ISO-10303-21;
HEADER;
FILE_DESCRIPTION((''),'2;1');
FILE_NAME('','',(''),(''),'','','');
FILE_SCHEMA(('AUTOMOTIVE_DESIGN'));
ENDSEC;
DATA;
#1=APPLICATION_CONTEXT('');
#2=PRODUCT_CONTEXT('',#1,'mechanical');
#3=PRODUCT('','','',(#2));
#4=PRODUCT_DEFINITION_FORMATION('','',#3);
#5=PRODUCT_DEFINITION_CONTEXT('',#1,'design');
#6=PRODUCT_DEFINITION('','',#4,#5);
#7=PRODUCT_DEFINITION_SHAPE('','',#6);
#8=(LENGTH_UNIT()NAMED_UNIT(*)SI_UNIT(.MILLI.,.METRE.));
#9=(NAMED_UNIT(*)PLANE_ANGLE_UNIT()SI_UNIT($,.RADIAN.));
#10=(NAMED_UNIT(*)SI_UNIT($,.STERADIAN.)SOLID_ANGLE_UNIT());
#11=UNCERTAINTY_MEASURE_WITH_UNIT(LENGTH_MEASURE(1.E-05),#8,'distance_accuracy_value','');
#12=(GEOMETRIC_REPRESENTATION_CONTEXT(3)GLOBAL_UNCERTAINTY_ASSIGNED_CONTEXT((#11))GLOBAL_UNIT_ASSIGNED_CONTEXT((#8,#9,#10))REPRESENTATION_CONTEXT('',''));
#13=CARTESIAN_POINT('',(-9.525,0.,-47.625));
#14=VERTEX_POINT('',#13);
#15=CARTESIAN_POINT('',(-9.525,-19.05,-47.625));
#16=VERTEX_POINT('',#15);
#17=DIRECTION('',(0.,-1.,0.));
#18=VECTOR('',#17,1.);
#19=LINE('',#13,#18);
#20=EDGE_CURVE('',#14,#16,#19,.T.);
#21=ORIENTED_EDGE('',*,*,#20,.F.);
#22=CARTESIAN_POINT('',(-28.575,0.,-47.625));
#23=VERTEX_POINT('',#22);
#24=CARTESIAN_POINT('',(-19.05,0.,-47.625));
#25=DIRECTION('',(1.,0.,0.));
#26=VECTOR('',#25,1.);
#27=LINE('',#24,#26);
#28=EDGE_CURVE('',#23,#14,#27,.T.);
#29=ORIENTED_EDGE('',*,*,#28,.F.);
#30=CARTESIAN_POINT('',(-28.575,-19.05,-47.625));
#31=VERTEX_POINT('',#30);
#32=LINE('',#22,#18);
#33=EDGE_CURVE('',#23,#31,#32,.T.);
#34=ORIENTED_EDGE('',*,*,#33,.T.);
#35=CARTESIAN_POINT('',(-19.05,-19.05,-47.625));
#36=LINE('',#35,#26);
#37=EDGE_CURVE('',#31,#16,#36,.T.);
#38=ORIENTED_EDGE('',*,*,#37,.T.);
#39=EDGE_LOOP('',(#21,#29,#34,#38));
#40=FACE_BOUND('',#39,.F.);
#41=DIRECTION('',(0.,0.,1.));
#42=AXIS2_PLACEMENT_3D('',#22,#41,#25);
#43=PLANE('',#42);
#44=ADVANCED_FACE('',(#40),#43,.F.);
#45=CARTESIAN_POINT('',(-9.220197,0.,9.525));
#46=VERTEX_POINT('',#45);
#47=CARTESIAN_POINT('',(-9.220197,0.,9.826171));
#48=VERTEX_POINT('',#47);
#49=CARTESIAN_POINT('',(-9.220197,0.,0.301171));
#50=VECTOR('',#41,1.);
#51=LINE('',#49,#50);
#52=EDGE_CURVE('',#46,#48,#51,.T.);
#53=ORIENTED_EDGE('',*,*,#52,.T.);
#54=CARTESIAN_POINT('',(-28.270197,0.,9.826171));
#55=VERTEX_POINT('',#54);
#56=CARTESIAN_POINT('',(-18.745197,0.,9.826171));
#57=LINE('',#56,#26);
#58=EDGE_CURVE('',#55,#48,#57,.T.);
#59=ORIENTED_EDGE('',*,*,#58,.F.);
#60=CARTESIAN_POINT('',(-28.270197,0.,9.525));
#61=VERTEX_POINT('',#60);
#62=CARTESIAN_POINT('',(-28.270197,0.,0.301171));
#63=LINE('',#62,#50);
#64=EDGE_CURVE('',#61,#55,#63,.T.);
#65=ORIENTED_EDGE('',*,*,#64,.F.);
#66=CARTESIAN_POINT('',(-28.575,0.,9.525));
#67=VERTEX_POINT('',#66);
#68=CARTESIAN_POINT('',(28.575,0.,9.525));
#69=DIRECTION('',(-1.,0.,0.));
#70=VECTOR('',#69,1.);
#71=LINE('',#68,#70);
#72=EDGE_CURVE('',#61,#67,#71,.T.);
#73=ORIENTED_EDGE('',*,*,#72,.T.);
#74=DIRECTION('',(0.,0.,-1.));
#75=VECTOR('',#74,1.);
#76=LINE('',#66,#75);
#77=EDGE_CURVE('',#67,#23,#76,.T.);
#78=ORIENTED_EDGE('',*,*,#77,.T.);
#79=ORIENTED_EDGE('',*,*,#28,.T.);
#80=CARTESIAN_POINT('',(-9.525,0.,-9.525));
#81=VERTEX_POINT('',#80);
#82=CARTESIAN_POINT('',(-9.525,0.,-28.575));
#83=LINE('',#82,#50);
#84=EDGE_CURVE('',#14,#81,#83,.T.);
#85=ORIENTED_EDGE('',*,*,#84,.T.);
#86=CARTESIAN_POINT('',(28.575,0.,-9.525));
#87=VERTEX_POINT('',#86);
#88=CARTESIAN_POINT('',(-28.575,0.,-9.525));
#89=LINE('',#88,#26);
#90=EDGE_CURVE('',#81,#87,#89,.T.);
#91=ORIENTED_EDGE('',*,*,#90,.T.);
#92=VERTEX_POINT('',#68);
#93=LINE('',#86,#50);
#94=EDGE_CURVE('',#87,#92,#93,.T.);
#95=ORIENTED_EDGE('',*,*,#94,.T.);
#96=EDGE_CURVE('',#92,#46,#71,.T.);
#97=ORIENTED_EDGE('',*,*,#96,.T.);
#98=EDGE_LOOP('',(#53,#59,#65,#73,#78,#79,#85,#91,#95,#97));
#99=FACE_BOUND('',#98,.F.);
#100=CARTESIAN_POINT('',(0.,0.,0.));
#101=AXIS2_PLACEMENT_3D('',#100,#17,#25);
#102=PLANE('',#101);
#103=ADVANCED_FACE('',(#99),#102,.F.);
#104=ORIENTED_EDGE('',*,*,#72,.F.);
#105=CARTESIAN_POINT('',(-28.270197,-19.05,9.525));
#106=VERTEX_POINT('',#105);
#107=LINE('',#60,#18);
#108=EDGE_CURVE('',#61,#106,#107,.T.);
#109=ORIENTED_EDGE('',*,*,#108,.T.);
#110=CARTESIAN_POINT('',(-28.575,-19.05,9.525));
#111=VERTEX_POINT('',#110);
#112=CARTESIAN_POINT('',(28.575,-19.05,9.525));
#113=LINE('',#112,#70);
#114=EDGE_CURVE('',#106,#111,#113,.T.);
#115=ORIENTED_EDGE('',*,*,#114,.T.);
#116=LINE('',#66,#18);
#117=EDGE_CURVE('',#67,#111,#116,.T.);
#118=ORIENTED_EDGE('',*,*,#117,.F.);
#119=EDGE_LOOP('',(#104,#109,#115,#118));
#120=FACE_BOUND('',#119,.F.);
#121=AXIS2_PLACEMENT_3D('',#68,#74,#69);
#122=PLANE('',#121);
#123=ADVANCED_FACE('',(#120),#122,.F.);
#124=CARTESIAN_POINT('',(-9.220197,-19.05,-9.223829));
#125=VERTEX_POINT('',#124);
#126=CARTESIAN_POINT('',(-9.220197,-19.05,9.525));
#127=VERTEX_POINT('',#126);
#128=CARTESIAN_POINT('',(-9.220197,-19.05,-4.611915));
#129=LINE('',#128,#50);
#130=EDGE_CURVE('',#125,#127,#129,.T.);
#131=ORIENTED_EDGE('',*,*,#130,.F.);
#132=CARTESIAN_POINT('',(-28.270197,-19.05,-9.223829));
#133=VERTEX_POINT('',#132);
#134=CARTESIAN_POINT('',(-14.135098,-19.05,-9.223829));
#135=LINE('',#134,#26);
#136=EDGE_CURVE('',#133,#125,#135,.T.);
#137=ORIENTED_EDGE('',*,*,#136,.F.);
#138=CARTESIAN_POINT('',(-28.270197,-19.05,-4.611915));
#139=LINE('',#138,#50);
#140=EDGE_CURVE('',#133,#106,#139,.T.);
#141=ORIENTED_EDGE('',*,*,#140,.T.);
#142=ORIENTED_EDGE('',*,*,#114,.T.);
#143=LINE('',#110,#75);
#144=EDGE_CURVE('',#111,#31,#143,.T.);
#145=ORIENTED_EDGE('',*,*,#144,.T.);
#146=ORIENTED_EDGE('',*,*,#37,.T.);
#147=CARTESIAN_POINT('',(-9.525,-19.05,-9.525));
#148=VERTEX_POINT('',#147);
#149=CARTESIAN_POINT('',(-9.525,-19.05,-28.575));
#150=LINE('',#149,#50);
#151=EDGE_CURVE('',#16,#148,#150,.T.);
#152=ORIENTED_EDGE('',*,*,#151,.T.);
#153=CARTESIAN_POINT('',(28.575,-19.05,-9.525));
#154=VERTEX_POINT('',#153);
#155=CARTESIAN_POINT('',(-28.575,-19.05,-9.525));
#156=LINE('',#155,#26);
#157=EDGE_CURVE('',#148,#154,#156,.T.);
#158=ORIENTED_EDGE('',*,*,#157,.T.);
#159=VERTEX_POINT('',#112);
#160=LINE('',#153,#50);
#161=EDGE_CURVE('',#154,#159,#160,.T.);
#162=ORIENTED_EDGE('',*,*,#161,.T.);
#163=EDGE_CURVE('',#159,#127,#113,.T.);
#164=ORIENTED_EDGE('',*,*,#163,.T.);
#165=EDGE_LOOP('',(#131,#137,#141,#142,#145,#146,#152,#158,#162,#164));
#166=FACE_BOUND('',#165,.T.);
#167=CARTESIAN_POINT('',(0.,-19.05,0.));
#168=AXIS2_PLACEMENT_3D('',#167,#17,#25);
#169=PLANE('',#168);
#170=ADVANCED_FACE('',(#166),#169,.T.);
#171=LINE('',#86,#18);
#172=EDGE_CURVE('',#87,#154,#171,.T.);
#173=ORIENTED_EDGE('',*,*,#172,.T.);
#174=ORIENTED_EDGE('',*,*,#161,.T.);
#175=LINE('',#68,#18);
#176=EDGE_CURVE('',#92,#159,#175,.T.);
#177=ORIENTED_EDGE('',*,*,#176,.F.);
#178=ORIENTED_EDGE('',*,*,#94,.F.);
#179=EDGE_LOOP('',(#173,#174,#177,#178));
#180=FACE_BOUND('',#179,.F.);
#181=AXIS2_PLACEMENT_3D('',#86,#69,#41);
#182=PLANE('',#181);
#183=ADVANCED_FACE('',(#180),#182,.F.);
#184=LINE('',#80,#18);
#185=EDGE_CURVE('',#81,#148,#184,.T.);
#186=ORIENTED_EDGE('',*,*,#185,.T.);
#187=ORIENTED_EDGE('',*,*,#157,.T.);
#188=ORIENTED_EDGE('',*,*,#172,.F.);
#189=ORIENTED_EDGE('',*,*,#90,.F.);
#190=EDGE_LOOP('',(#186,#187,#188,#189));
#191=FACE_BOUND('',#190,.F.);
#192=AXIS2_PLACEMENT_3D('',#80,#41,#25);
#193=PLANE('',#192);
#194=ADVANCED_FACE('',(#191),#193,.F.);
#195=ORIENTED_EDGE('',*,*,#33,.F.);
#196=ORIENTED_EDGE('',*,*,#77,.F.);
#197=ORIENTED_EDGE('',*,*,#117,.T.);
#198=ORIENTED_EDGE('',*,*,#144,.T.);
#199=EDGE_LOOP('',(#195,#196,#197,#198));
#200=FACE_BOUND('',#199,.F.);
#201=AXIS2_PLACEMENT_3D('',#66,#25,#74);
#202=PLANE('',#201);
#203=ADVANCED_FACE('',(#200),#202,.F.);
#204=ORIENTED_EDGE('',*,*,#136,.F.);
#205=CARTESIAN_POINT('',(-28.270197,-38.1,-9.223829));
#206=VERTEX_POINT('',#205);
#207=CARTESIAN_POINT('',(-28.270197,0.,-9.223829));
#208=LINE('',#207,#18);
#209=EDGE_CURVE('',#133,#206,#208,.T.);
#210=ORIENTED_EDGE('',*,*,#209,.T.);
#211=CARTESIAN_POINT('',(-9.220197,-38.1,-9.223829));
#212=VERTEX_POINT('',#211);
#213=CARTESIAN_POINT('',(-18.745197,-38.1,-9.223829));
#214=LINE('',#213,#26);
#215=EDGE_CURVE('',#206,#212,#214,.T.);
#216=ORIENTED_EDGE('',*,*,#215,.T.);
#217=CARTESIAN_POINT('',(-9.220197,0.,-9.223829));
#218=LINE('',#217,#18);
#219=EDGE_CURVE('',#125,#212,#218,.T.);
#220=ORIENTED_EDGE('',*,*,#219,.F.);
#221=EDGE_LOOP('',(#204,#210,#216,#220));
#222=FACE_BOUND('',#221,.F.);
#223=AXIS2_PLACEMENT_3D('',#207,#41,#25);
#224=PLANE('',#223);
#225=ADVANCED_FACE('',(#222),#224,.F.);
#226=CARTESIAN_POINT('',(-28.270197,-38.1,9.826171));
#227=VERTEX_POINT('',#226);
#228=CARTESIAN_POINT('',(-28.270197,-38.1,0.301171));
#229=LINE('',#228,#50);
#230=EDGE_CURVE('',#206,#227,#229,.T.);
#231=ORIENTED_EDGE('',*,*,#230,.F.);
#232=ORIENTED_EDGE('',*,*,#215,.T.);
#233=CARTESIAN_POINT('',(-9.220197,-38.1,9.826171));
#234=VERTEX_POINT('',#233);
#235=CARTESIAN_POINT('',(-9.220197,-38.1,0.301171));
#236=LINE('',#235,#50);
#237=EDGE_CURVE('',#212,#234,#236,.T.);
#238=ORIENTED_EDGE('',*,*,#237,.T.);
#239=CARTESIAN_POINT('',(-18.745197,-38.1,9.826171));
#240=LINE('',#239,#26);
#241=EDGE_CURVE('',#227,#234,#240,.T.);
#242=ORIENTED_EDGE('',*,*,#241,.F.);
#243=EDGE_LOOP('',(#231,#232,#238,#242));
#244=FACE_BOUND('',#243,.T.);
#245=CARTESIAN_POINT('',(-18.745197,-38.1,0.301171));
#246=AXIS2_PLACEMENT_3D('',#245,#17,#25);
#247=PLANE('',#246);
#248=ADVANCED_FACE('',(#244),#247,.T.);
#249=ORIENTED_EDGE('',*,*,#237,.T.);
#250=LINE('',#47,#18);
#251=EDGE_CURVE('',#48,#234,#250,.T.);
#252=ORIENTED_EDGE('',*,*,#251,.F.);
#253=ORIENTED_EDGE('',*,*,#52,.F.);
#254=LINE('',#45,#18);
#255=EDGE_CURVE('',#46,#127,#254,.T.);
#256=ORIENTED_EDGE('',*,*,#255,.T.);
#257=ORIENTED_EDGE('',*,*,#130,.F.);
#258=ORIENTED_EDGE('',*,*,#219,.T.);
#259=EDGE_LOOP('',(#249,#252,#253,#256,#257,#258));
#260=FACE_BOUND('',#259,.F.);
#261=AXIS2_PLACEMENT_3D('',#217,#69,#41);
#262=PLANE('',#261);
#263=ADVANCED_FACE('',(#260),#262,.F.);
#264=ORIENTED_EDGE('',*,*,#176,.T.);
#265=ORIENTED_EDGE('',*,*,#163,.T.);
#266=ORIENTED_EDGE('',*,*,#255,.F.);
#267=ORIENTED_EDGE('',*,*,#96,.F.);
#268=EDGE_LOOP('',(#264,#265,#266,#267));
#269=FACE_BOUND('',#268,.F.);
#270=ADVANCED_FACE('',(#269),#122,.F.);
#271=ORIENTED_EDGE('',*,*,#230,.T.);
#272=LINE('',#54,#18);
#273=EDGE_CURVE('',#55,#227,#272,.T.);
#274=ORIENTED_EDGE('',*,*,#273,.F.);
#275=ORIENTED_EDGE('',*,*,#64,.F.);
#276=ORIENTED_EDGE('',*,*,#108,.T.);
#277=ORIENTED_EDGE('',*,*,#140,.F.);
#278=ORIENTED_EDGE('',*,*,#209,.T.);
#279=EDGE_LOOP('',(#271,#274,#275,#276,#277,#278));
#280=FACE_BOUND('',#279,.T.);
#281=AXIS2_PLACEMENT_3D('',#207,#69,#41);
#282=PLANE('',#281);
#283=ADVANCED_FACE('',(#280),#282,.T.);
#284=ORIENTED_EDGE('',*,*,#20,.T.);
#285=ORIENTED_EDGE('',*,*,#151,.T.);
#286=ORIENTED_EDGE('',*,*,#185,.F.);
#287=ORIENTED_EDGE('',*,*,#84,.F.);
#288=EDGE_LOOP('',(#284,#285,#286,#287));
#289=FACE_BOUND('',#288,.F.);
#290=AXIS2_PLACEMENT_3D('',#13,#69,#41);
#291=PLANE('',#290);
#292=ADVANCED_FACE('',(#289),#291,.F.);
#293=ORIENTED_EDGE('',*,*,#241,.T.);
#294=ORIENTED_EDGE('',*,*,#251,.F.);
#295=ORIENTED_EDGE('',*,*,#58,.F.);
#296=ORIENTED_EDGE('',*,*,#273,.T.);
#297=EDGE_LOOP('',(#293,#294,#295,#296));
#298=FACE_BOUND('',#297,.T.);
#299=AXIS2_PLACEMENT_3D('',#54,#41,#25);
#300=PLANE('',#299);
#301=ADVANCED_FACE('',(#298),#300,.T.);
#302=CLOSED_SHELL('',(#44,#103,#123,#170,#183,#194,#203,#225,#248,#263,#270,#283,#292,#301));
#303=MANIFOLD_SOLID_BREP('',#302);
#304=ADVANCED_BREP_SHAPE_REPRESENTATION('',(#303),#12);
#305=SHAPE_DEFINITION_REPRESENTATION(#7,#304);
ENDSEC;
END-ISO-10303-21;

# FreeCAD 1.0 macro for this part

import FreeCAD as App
import Part
import Sketcher
Q = App.Units.Quantity

doc = App.newDocument("Part")
body = doc.addObject("PartDesign::Body", "Body")

# Sketch on XZ plane
sketch1 = body.newObject("Sketcher::SketchObject", "Sketch")
sketch1.AttachmentSupport = (doc.getObject("XZ_Plane"), [""])
sketch1.MapMode = "FlatFace"
sketch1.addGeometry([
    Part.LineSegment(App.Vector(-28.270197, 9.826171, 0), App.Vector(-28.270197, -9.223829, 0)),
    Part.LineSegment(App.Vector(-28.270197, -9.223829, 0), App.Vector(-9.220197, -9.223829, 0)),
    Part.LineSegment(App.Vector(-9.220197, -9.223829, 0), App.Vector(-9.220197, 9.826171, 0)),
    Part.LineSegment(App.Vector(-9.220197, 9.826171, 0), App.Vector(-28.270197, 9.826171, 0)),
], False)
sketch1.addConstraint([
    Sketcher.Constraint("Coincident", 0, 2, 1, 1),
    Sketcher.Constraint("Coincident", 1, 2, 2, 1),
    Sketcher.Constraint("Coincident", 2, 2, 3, 1),
    Sketcher.Constraint("Coincident", 3, 2, 0, 1),
    Sketcher.Constraint("Vertical", 0),
    Sketcher.Constraint("Horizontal", 1),
    Sketcher.Constraint("Vertical", 2),
    Sketcher.Constraint("Horizontal", 3),
    Sketcher.Constraint("Equal", 3, 0),
    Sketcher.Constraint("DistanceX", 1, 1, 1, 2, Q("0.75 in")),
    Sketcher.Constraint("DistanceX", 0, 2, -1, 1, Q("1.1129999 in")),
    Sketcher.Constraint("DistanceY", 0, 2, -1, 1, 9.223829),
])
pad1 = body.newObject("PartDesign::Pad", "Pad")
pad1.Profile = sketch1
pad1.Length = Q("1.5 in")

# Sketch on XZ plane
sketch2 = body.newObject("Sketcher::SketchObject", "Sketch001")
sketch2.AttachmentSupport = (doc.getObject("XZ_Plane"), [""])
sketch2.MapMode = "FlatFace"
sketch2.addGeometry([
    Part.LineSegment(App.Vector(28.575, -9.525, 0), App.Vector(28.575, 9.525, 0)),  # 0
    Part.LineSegment(App.Vector(28.575, 9.525, 0), App.Vector(-28.575, 9.525, 0)),  # 1
    Part.LineSegment(App.Vector(-28.575, 9.525, 0), App.Vector(-28.575, -47.625, 0)),  # 2
    Part.LineSegment(App.Vector(-28.575, -47.625, 0), App.Vector(-9.525, -47.625, 0)),  # 3
    Part.LineSegment(App.Vector(-9.525, -47.625, 0), App.Vector(-9.525, -9.525, 0)),  # 4
    Part.LineSegment(App.Vector(-9.525, -9.525, 0), App.Vector(28.575, -9.525, 0)),  # 5
], False)
sketch2.addConstraint([
    Sketcher.Constraint("Coincident", 0, 2, 1, 1),
    Sketcher.Constraint("Coincident", 1, 2, 2, 1),
    Sketcher.Constraint("Coincident", 2, 2, 3, 1),
    Sketcher.Constraint("Coincident", 3, 2, 4, 1),
    Sketcher.Constraint("Coincident", 4, 2, 5, 1),
    Sketcher.Constraint("Coincident", 5, 2, 0, 1),
    Sketcher.Constraint("Vertical", 0),
    Sketcher.Constraint("Horizontal", 1),
    Sketcher.Constraint("Vertical", 2),
    Sketcher.Constraint("Horizontal", 3),
    Sketcher.Constraint("Vertical", 4),
    Sketcher.Constraint("Horizontal", 5),
    Sketcher.Constraint("Symmetric", 1, 2, 5, 2, -1, 1),
    Sketcher.Constraint("Equal", 3, 0),
    Sketcher.Constraint("Equal", 1, 2),
    Sketcher.Constraint("DistanceX", 5, 1, 5, 2, Q("1.5 in")),
    Sketcher.Constraint("DistanceX", 1, 2, 1, 1, Q("2.25 in")),
])
pad2 = body.newObject("PartDesign::Pad", "Pad001")
pad2.Profile = sketch2
pad2.Length = Q("0.75 in")

doc.recompute()
